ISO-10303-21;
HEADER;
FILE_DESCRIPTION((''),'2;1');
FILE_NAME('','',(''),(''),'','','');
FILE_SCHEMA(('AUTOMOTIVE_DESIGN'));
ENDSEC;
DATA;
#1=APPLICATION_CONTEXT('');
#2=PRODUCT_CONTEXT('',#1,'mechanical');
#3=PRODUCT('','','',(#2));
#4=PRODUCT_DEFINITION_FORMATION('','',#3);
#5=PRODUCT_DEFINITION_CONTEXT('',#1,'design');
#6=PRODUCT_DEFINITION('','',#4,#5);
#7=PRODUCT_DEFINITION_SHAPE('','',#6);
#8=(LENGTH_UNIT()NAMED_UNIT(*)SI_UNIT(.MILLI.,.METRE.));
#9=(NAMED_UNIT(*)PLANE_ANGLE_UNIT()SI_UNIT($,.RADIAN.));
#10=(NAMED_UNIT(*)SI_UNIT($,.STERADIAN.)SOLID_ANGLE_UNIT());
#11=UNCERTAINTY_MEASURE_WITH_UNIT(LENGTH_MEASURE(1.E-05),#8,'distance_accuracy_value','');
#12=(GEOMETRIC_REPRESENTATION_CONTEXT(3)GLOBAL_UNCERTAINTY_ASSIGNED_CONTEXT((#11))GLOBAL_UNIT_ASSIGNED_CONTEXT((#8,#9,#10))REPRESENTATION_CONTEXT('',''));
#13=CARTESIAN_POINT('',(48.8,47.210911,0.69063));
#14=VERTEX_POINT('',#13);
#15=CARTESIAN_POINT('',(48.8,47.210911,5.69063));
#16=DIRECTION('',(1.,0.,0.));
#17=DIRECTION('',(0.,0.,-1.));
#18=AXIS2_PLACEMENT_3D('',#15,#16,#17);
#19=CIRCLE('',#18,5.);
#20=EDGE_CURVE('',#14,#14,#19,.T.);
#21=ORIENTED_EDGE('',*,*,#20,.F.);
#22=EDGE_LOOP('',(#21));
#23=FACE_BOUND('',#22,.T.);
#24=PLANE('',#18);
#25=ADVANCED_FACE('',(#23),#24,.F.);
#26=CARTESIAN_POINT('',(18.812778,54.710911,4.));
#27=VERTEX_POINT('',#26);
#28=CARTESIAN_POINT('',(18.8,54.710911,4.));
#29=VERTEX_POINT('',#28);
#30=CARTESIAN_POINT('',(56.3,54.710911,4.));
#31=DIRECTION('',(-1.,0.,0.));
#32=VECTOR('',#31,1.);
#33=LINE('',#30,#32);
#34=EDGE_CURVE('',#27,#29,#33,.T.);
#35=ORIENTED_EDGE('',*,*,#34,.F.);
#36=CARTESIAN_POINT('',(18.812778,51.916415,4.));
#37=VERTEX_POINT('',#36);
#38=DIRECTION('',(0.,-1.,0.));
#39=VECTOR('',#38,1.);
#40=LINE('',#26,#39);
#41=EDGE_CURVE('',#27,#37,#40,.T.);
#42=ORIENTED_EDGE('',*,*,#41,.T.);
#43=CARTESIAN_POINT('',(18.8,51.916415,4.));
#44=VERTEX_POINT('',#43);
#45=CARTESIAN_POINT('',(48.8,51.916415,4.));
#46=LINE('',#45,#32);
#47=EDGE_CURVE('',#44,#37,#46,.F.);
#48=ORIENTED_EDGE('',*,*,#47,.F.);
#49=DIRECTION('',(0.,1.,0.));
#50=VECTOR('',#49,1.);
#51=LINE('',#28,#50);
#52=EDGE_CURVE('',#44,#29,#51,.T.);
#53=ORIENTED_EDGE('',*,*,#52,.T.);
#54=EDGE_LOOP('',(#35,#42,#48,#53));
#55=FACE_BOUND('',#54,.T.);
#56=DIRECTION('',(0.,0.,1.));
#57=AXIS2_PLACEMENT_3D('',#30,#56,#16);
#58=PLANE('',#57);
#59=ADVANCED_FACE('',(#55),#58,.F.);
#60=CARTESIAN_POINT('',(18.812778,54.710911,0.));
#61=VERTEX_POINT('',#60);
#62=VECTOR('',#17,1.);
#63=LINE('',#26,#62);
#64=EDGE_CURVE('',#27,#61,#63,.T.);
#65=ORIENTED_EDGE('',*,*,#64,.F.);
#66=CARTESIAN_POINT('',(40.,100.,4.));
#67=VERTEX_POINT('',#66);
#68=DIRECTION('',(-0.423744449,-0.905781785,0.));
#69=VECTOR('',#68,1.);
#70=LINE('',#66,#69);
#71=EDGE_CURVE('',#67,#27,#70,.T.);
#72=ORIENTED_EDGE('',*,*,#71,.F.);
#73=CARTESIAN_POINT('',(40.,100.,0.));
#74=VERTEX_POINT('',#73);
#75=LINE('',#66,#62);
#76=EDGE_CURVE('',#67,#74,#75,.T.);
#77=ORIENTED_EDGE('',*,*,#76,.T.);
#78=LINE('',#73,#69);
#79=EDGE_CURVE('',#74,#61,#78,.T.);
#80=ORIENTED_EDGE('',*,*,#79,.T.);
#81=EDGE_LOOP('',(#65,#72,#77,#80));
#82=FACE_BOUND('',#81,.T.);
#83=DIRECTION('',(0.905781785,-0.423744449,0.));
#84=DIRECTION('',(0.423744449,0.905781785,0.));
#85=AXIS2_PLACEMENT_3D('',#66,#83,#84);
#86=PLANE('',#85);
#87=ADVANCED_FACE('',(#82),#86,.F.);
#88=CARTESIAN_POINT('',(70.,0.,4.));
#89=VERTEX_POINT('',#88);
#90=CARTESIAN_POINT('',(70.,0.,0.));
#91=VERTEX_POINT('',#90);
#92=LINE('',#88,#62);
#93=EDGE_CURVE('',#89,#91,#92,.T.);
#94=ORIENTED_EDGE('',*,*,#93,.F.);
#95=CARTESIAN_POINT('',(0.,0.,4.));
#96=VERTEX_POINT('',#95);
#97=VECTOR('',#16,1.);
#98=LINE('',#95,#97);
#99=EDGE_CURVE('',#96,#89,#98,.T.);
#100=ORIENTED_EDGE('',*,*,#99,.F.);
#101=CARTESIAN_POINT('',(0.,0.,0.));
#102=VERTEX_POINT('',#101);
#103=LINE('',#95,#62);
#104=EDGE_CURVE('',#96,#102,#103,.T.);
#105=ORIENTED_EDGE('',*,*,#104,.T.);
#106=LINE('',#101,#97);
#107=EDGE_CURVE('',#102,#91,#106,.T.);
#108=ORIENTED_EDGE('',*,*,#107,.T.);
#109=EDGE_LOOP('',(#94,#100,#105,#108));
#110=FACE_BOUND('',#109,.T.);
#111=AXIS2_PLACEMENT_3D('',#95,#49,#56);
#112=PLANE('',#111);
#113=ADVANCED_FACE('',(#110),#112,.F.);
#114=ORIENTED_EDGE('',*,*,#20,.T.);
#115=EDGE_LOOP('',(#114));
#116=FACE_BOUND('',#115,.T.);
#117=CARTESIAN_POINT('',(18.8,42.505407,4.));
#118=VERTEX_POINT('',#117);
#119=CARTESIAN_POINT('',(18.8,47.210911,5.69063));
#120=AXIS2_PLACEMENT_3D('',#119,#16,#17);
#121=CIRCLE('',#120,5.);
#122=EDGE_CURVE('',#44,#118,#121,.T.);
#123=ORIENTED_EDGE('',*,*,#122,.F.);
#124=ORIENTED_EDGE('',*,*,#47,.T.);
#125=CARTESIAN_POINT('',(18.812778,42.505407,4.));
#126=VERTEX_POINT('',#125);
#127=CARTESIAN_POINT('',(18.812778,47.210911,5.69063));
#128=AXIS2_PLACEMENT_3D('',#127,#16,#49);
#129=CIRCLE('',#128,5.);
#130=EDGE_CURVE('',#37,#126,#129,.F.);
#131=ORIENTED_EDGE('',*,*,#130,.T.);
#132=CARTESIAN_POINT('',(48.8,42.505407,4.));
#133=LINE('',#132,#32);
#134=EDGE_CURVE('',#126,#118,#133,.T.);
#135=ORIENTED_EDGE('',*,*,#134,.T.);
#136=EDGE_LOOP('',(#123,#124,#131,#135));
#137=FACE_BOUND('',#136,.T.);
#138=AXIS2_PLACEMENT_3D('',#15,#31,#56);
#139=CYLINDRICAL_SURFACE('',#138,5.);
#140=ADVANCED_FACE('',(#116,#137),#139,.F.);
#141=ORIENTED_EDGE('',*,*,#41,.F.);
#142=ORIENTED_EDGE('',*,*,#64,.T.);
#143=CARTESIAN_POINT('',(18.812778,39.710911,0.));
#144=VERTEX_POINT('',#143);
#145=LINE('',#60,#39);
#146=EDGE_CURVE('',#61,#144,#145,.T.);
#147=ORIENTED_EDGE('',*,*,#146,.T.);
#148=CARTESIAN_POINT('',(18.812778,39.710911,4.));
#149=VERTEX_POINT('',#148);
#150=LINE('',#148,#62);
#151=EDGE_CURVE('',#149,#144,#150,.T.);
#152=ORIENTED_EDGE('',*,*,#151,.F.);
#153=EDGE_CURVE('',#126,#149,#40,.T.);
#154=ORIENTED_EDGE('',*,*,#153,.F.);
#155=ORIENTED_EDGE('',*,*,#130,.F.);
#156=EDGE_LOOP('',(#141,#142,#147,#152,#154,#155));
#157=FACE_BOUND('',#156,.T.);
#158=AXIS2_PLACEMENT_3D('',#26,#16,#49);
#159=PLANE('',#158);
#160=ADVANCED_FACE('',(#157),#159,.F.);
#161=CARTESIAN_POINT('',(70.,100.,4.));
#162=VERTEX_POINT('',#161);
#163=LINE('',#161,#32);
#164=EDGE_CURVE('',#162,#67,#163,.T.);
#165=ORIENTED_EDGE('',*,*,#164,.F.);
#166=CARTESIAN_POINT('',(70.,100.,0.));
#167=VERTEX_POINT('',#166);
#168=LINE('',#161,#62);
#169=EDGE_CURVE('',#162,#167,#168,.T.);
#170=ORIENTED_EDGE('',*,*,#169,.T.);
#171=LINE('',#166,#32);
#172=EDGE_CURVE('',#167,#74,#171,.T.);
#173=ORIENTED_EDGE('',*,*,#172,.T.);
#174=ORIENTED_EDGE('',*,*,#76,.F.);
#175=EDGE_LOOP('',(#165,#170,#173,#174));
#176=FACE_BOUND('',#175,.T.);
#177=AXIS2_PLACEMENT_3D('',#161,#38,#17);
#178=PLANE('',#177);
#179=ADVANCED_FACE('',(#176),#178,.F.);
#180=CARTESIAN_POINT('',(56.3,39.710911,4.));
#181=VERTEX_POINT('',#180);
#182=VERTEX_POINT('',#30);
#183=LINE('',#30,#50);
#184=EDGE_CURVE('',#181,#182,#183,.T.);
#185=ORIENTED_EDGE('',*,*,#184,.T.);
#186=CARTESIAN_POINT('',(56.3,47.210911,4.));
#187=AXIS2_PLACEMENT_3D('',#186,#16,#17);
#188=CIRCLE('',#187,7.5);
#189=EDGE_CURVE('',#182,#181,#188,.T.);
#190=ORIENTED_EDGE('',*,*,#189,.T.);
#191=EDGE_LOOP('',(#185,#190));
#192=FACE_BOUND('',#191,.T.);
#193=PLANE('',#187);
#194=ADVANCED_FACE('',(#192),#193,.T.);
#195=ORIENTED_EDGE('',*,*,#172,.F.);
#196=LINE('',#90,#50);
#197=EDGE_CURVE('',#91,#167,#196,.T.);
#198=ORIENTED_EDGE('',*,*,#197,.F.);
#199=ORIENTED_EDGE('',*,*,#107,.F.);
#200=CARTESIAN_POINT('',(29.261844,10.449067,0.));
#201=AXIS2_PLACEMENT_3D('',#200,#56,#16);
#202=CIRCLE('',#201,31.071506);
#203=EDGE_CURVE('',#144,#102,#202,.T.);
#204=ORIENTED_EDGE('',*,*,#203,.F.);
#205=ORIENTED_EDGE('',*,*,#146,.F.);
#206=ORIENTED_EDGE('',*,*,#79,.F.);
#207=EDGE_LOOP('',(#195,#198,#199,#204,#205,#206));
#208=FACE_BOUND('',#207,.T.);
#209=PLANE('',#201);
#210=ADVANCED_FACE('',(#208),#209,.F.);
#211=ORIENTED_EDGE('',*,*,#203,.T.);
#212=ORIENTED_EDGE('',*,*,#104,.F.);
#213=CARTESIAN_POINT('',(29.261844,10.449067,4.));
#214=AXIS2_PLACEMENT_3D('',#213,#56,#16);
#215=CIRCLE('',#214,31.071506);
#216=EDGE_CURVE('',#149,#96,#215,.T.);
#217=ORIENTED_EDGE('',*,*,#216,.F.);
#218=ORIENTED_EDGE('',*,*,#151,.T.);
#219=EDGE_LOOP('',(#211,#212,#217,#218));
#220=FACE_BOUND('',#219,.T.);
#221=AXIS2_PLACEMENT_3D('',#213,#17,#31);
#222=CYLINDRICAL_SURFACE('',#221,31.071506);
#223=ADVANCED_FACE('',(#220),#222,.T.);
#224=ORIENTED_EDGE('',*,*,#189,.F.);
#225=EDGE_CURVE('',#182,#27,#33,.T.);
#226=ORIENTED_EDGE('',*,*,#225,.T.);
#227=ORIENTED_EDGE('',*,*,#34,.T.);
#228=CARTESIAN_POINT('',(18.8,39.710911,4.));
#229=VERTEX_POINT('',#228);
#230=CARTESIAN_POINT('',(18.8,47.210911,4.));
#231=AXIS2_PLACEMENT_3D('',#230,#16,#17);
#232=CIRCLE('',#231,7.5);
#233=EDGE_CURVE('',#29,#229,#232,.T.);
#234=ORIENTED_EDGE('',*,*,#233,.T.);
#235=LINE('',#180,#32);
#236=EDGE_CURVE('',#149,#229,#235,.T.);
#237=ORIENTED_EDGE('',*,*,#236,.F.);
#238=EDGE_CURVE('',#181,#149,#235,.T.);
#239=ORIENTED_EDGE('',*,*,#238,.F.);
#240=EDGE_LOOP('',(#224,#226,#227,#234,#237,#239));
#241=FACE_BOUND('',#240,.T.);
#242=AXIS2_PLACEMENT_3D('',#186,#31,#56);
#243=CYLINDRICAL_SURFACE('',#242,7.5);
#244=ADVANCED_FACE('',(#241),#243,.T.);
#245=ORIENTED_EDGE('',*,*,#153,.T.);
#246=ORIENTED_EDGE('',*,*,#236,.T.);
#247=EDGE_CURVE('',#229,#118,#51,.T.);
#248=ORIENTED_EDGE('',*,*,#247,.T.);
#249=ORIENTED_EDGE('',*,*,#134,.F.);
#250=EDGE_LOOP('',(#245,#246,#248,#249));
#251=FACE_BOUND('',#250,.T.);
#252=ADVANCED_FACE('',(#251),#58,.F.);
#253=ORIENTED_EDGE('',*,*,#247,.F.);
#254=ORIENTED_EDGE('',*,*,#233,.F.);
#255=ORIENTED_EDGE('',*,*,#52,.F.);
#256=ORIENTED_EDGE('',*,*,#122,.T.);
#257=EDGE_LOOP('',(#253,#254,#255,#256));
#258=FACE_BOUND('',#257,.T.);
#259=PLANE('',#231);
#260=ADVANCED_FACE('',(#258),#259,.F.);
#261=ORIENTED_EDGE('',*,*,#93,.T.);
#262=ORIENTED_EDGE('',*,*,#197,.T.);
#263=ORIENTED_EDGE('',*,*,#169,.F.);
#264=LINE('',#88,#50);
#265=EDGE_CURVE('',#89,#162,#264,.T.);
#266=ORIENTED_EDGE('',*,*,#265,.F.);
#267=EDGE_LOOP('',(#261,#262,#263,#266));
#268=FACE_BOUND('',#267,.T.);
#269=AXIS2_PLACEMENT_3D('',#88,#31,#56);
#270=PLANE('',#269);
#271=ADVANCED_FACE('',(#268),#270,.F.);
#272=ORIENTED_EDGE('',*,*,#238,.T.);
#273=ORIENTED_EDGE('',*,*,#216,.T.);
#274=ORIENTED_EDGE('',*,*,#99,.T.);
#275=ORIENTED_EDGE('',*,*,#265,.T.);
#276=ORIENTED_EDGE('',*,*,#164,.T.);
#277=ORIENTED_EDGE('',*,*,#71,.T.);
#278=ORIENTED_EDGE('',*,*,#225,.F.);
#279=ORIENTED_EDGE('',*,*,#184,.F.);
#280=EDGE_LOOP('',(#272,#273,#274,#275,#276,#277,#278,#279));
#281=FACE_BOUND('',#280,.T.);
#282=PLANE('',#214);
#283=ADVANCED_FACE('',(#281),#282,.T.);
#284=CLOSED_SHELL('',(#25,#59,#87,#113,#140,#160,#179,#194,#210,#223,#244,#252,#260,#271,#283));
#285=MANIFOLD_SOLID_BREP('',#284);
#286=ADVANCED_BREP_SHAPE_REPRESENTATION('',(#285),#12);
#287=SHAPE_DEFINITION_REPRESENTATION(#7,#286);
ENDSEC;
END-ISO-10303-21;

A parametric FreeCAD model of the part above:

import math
import FreeCAD as App
import Part
import Sketcher
Q = App.Units.Quantity

doc = App.newDocument("Part")
body = doc.addObject("PartDesign::Body", "Body")

sketch1 = body.newObject("Sketcher::SketchObject", "Sketch")
sketch1.AttachmentSupport = (doc.getObject("XY_Plane"), [""])
sketch1.MapMode = "FlatFace"
sketch1.addGeometry([
    Part.LineSegment(App.Vector(0, 0, 0), App.Vector(70, 0, 0)),
    Part.LineSegment(App.Vector(70, 0, 0), App.Vector(70, 100, 0)),
    Part.LineSegment(App.Vector(70, 100, 0), App.Vector(40, 100, 0)),
    Part.LineSegment(App.Vector(40, 100, 0), App.Vector(18.812778, 54.710911, 0)),
    Part.LineSegment(App.Vector(18.812778, 54.710911, 0), App.Vector(18.812778, 39.710911, 0)),
    Part.ArcOfCircle(Part.Circle(App.Vector(29.261844, 10.449067, 0), App.Vector(0, 0, 1), 31.071506), math.radians(109.651059), math.radians(199.651059)),
], False)
sketch1.addConstraint([
    Sketcher.Constraint("Coincident", 0, 2, 1, 1),
    Sketcher.Constraint("Coincident", 1, 2, 2, 1),
    Sketcher.Constraint("Coincident", 2, 2, 3, 1),
    Sketcher.Constraint("Coincident", 3, 2, 4, 1),
    Sketcher.Constraint("Coincident", 4, 2, 5, 1),
    Sketcher.Constraint("Coincident", 5, 2, 0, 1),
    Sketcher.Constraint("Horizontal", 0),
    Sketcher.Constraint("Vertical", 1),
    Sketcher.Constraint("Horizontal", 2),
    Sketcher.Constraint("Vertical", 4),
    Sketcher.Constraint("Coincident", 5, 2, -1, 1),
    Sketcher.Constraint("DistanceX", 0, 1, 0, 2, Q("70 mm")),
    Sketcher.Constraint("DistanceX", 2, 2, 2, 1, Q("30 mm")),
    Sketcher.Constraint("DistanceY", 1, 1, 1, 2, Q("100 mm")),
    Sketcher.Constraint("DistanceY", 4, 2, 4, 1, Q("15 mm")),
    Sketcher.Constraint("Distance", 3, Q("50 mm")),
    Sketcher.Constraint("Radius", 5, Q("31.071506 mm")),
    Sketcher.Constraint("DistanceY", -1, 1, 3, 2, Q("54.710911 mm")),
])
pad1 = body.newObject("PartDesign::Pad", "Pad")
pad1.Profile = sketch1
pad1.Length = 4

sketch2 = body.newObject("Sketcher::SketchObject", "Sketch001")
sketch2.AttachmentSupport = (doc.getObject("YZ_Plane"), [""])
sketch2.MapMode = "FlatFace"
sketch2.AttachmentOffset = App.Placement(App.Vector(0, 0, 18.8), App.Rotation())
sketch2.addGeometry([
    Part.LineSegment(App.Vector(39.710911, 4, 0), App.Vector(54.710911, 4, 0)),
    Part.ArcOfCircle(Part.Circle(App.Vector(47.210911, 4, 0), App.Vector(0, 0, 1), 7.5), math.radians(0), math.radians(180)),
], False)
sketch2.addConstraint([
    Sketcher.Constraint("Coincident", 0, 1, 1, 2),
    Sketcher.Constraint("Coincident", 1, 1, 0, 2),
    Sketcher.Constraint("Horizontal", 0),
    Sketcher.Constraint("Horizontal", 1, 3, 0, 1),
    Sketcher.Constraint("Radius", 1, Q("7.5 mm")),
    Sketcher.Constraint("DistanceY", -1, 1, 1, 3, Q("4 mm")),
    Sketcher.Constraint("DistanceX", -1, 1, 1, 3, Q("47.210911 mm")),
])
pad2 = body.newObject("PartDesign::Pad", "Pad001")
pad2.Profile = sketch2
pad2.Length = 37.5

sketch3 = body.newObject("Sketcher::SketchObject", "Sketch002")
sketch3.AttachmentSupport = (doc.getObject("YZ_Plane"), [""])
sketch3.MapMode = "FlatFace"
sketch3.AttachmentOffset = App.Placement(App.Vector(0, 0, 18.8), App.Rotation())
sketch3.addGeometry(Part.Circle(App.Vector(47.210911, 5.69063, 0), App.Vector(0, 0, 1), 5), False)
sketch3.addConstraint([
    Sketcher.Constraint("Diameter", 0, Q("10 mm")),
    Sketcher.Constraint("DistanceX", -1, 1, 0, 3, Q("47.210911 mm")),
    Sketcher.Constraint("DistanceY", -1, 1, 0, 3, Q("5.69063 mm")),
])
pocket1 = body.newObject("PartDesign::Pocket", "Pocket")
pocket1.Profile = sketch3
pocket1.Length = 30
pocket1.Reversed = True

doc.recompute()
